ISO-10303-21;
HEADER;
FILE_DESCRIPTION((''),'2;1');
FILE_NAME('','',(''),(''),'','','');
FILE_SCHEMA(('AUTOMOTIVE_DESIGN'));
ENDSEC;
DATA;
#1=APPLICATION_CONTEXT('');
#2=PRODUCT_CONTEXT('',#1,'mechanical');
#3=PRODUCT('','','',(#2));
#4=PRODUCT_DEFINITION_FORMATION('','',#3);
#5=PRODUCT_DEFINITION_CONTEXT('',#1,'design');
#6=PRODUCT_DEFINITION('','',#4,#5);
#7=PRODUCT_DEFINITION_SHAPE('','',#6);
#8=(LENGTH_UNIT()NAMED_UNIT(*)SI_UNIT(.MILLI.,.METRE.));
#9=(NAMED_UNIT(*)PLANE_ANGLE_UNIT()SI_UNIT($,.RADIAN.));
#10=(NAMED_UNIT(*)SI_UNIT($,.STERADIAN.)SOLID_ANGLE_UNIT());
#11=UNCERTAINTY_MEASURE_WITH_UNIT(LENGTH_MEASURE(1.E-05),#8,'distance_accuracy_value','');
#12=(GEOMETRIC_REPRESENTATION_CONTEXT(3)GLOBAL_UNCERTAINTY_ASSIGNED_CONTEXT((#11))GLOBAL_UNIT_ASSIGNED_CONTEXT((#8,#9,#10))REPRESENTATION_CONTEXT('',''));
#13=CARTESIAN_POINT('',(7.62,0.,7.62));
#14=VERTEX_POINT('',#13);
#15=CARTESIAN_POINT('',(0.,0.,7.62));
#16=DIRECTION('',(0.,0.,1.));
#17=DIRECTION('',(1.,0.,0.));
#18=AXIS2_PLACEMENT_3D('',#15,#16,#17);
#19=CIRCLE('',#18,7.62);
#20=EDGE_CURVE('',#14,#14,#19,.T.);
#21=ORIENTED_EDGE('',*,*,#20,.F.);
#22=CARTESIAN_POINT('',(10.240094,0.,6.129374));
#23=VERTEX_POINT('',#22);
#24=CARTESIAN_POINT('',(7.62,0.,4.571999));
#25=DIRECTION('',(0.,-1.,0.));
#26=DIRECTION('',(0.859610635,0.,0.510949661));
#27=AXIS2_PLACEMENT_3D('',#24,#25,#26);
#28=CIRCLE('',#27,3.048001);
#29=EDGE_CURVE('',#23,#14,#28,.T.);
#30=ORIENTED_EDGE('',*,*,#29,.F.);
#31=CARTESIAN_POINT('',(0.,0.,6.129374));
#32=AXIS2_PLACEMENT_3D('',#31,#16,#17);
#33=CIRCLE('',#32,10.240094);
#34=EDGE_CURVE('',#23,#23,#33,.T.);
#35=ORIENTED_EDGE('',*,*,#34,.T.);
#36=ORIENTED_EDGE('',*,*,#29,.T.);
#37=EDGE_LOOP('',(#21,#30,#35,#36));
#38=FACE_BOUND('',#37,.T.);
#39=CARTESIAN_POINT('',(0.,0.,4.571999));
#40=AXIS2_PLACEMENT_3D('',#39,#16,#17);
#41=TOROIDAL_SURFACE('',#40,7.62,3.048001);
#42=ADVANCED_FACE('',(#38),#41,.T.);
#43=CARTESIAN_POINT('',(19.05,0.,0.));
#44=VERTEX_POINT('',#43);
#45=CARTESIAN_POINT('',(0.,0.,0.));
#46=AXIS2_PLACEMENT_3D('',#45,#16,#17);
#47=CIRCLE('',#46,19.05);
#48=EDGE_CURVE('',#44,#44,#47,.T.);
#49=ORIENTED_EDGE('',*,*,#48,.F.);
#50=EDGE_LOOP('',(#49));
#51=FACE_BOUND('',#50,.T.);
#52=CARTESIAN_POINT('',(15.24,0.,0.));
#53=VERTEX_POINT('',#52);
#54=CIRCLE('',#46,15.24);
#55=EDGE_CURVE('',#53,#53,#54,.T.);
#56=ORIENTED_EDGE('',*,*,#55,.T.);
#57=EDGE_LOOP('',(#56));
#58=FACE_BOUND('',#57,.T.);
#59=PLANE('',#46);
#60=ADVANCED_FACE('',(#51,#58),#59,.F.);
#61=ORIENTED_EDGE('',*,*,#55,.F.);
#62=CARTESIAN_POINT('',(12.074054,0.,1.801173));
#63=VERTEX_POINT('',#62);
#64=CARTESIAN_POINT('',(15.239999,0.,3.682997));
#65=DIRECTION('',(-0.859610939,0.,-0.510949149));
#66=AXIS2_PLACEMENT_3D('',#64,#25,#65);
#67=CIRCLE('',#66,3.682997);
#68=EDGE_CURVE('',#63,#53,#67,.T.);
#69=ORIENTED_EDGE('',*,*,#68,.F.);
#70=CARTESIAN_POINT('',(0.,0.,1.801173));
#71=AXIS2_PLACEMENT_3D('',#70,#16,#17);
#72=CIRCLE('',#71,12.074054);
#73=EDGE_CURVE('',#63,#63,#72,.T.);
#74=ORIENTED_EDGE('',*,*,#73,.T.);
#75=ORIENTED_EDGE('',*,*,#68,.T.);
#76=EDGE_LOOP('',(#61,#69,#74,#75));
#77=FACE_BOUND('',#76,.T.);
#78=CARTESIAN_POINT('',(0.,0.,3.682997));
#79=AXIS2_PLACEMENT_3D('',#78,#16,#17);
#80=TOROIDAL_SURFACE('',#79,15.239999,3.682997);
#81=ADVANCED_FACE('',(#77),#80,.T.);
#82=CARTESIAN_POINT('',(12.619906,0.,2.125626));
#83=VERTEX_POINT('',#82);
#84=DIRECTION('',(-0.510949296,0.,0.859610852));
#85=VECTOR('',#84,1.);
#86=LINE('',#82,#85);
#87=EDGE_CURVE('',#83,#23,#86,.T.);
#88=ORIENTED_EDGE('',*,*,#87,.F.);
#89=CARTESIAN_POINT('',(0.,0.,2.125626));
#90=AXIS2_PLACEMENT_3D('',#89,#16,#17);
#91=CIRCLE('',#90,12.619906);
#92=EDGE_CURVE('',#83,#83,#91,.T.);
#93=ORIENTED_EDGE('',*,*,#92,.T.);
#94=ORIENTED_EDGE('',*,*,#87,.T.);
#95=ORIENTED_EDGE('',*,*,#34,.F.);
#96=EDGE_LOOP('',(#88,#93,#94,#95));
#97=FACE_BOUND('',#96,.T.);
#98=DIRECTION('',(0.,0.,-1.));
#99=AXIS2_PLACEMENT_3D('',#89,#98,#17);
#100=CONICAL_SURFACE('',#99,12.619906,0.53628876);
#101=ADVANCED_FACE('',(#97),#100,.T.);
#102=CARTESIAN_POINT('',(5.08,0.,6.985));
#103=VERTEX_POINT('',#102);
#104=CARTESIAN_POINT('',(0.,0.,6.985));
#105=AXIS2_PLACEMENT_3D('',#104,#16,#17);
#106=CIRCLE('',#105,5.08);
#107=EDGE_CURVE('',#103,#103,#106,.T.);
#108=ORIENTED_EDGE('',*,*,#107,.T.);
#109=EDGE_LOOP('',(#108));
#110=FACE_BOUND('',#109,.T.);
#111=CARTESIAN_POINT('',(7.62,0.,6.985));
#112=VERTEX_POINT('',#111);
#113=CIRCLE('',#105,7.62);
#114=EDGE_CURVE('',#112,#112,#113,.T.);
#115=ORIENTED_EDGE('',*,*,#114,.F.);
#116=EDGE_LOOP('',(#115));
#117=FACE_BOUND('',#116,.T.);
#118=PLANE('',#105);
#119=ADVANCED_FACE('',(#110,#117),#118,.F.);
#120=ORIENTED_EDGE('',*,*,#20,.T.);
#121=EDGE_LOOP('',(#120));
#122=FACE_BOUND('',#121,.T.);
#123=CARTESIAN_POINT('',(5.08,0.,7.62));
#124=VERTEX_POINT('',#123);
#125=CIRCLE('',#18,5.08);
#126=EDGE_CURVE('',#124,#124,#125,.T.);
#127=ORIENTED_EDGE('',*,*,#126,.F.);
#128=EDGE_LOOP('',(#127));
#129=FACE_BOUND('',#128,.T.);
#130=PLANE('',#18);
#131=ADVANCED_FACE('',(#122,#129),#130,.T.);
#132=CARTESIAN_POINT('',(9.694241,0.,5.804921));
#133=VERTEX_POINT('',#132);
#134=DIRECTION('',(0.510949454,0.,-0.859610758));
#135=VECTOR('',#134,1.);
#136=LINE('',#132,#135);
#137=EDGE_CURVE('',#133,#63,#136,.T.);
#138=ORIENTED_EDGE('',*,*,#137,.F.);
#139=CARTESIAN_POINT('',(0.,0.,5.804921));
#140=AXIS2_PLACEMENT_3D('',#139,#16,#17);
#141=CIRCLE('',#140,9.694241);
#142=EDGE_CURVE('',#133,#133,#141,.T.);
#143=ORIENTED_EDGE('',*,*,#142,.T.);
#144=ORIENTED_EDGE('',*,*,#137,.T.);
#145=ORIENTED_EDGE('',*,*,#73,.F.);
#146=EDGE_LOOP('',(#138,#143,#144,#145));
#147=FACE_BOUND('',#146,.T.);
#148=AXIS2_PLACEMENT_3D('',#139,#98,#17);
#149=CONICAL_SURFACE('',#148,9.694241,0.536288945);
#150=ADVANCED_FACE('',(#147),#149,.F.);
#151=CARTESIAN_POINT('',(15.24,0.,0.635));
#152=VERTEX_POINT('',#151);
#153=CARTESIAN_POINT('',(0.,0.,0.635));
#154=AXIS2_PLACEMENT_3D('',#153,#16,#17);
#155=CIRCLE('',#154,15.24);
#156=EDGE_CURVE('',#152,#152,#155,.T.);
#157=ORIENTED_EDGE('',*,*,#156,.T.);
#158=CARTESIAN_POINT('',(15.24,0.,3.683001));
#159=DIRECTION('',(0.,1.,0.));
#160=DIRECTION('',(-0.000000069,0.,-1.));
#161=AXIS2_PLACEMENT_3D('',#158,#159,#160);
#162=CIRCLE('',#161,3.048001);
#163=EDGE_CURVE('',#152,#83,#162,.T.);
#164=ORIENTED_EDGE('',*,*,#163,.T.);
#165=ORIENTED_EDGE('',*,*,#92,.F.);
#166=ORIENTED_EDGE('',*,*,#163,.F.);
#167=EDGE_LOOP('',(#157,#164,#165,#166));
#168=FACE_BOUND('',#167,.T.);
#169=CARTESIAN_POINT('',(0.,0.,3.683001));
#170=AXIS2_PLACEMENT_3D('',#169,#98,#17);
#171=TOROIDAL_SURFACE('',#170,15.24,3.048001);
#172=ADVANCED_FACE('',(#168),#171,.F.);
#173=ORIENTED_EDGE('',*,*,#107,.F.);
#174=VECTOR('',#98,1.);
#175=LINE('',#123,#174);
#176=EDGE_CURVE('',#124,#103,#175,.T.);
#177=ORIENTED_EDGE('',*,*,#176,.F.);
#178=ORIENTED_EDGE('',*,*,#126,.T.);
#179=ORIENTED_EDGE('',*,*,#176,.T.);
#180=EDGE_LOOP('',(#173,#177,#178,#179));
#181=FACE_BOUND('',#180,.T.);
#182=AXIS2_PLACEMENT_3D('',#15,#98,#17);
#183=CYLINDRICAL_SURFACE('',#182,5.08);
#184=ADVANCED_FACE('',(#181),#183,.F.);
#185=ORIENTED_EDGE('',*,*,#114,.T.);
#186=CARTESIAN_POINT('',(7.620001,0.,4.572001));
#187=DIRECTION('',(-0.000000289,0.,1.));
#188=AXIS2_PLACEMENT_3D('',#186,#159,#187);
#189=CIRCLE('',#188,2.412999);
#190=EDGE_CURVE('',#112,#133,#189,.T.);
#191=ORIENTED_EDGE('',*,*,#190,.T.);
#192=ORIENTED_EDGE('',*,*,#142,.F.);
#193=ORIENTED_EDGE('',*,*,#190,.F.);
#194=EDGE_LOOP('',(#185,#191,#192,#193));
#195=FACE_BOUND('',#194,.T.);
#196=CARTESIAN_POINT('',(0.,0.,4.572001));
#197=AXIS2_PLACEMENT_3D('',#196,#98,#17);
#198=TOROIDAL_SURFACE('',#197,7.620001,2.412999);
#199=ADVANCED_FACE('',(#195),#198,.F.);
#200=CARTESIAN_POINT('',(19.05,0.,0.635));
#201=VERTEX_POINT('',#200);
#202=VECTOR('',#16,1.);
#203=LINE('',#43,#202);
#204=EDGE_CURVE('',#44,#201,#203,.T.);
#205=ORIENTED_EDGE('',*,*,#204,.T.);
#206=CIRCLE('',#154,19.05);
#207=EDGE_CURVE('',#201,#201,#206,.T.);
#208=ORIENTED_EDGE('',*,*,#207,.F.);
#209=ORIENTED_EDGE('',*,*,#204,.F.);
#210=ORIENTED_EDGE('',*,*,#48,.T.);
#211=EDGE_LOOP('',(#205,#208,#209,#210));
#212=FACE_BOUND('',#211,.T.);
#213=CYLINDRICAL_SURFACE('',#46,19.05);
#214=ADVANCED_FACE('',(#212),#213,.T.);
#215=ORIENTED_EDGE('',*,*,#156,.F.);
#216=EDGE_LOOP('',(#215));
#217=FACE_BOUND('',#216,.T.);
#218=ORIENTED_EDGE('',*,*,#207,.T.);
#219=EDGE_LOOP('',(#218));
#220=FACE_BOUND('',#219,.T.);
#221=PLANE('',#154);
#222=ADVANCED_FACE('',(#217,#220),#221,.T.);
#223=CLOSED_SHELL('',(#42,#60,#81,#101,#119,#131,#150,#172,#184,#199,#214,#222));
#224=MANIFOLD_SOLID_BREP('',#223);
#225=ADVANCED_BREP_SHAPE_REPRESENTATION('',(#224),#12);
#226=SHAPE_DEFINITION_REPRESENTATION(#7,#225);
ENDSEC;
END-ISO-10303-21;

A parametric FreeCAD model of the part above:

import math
import FreeCAD as App
import Part
import Sketcher
Q = App.Units.Quantity

doc = App.newDocument("Part")
body = doc.addObject("PartDesign::Body", "Body")

# Sketch on XZ plane
sketch1 = doc.addObject("Sketcher::SketchObject", "Sketch")
body.addObject(sketch1)
sketch1.AttachmentSupport = (doc.XZ_Plane, [""])
sketch1.MapMode = "FlatFace"
sketch1.addGeometry([
    Part.LineSegment(App.Vector(7.6, 7.6, 0), App.Vector(5.1, 7.6, 0)),  # 0
    Part.LineSegment(App.Vector(5.1, 7.6, 0), App.Vector(5.1, 7, 0)),  # 1
    Part.LineSegment(App.Vector(5.1, 7, 0), App.Vector(7.6, 7, 0)),  # 2
    Part.ArcOfCircle(Part.Circle(App.Vector(7.6, 4.6, 0), App.Vector(0, 0, 1), 2.4), math.radians(31), math.radians(90)),  # 3
    Part.LineSegment(App.Vector(9.7, 5.8, 0), App.Vector(12.1, 1.8, 0)),  # 4
    Part.ArcOfCircle(Part.Circle(App.Vector(15.2, 3.7, 0), App.Vector(0, 0, 1), 3.7), math.radians(-149), math.radians(-90)),  # 5
    Part.LineSegment(App.Vector(15.2, 0, 0), App.Vector(19.1, 0, 0)),  # 6
    Part.LineSegment(App.Vector(19.1, 0, 0), App.Vector(19.1, 0.6, 0)),  # 7
    Part.LineSegment(App.Vector(19.1, 0.6, 0), App.Vector(15.2, 0.6, 0)),  # 8
    Part.ArcOfCircle(Part.Circle(App.Vector(15.2, 3.7, 0), App.Vector(0, 0, 1), 3), math.radians(-149), math.radians(-90)),  # 9
    Part.LineSegment(App.Vector(12.6, 2.1, 0), App.Vector(10.2, 6.1, 0)),  # 10
    Part.ArcOfCircle(Part.Circle(App.Vector(7.6, 4.6, 0), App.Vector(0, 0, 1), 3), math.radians(31), math.radians(90)),  # 11
], False)
sketch1.addConstraint([
    Sketcher.Constraint("Coincident", 0, 2, 1, 1),
    Sketcher.Constraint("Coincident", 1, 2, 2, 1),
    Sketcher.Constraint("Tangent", 2, 2, 3, 2),
    Sketcher.Constraint("Tangent", 3, 1, 4, 1),
    Sketcher.Constraint("Tangent", 4, 2, 5, 1),
    Sketcher.Constraint("Tangent", 5, 2, 6, 1),
    Sketcher.Constraint("Coincident", 6, 2, 7, 1),
    Sketcher.Constraint("Coincident", 7, 2, 8, 1),
    Sketcher.Constraint("Tangent", 8, 2, 9, 2),
    Sketcher.Constraint("Tangent", 9, 1, 10, 1),
    Sketcher.Constraint("Tangent", 10, 2, 11, 1),
    Sketcher.Constraint("Tangent", 11, 2, 0, 1),
    Sketcher.Constraint("Horizontal", 0),
    Sketcher.Constraint("Vertical", 1),
    Sketcher.Constraint("Horizontal", 2),
    Sketcher.Constraint("Horizontal", 6),
    Sketcher.Constraint("Vertical", 7),
    Sketcher.Constraint("Horizontal", 8),
    Sketcher.Constraint("Coincident", 9, 3, 5, 3),
    Sketcher.Constraint("Coincident", 11, 3, 3, 3),
    Sketcher.Constraint("Equal", 9, 11),
    Sketcher.Constraint("PointOnObject", 5, 2, -1),
    Sketcher.Constraint("Parallel", 4, 10),
    Sketcher.Constraint("Radius", 9, Q("0.12 in")),
    Sketcher.Constraint("DistanceX", 0, 2, 0, 1, Q("0.1 in")),
    Sketcher.Constraint("Radius", 3, Q("0.095 in")),
    Sketcher.Constraint("DistanceX", 6, 1, 6, 2, Q("0.15 in")),
    Sketcher.Constraint("DistanceX", -1, 1, 3, 3, Q("0.3 in")),
    Sketcher.Constraint("DistanceX", -1, 1, 5, 3, Q("0.6 in")),
    Sketcher.Constraint("DistanceY", -1, 1, 0, 2, Q("0.3 in")),
])
revolution = doc.addObject("PartDesign::Revolution", "Revolution")
body.addObject(revolution)
revolution.Profile = sketch1
revolution.ReferenceAxis = (sketch1, ["V_Axis"])
revolution.Angle = 360

doc.recompute()
